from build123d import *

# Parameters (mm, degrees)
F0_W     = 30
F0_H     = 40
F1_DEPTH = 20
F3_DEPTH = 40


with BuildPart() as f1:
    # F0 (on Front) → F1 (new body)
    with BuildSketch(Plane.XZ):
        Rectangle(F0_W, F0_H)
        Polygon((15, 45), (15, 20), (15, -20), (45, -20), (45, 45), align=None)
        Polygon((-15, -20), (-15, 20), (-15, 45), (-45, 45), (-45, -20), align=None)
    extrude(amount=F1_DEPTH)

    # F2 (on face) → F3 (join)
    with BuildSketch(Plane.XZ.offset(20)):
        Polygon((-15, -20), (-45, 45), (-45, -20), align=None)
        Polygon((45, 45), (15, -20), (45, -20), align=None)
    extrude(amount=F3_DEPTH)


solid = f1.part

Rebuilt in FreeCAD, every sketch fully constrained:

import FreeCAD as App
import Part
import Sketcher

V = App.Vector

doc = App.newDocument("Part")
params = doc.addObject("Spreadsheet::Sheet", "Params")
for row, (alias, value) in enumerate([
    ("sketch1_width", "30 mm"),
    ("sketch1_height", "65 mm"),
    ("sketch1_height2", "25 mm"),
    ("pad1_length", "20 mm"),
    ("sketch2_width", "30 mm"),
    ("sketch2_height", "65 mm"),
    ("pad2_length", "40 mm"),
], start=1):
    params.set(f"A{row}", alias)
    params.set(f"B{row}", "=" + value)
    params.setAlias(f"B{row}", alias)

body = doc.addObject("PartDesign::Body", "Body")

# Sketch on XZ plane
sketch1 = body.newObject("Sketcher::SketchObject", "Sketch")
sketch1.AttachmentSupport = (doc.getObject("XZ_Plane"), [""])
sketch1.MapMode = "FlatFace"
sketch1.addGeometry([
    Part.LineSegment(V(45, -20, 0), V(45, 45, 0)),  # 0
    Part.LineSegment(V(45, 45, 0), V(15, 45, 0)),  # 1
    Part.LineSegment(V(15, 45, 0), V(15, 20, 0)),  # 2
    Part.LineSegment(V(15, 20, 0), V(-15, 20, 0)),  # 3
    Part.LineSegment(V(-15, 20, 0), V(-15, 45, 0)),  # 4
    Part.LineSegment(V(-15, 45, 0), V(-45, 45, 0)),  # 5
    Part.LineSegment(V(-45, 45, 0), V(-45, -20, 0)),  # 6
    Part.LineSegment(V(-45, -20, 0), V(45, -20, 0)),  # 7
], False)
sketch1.addConstraint([
    Sketcher.Constraint("Coincident", 0, 2, 1, 1),
    Sketcher.Constraint("Coincident", 1, 2, 2, 1),
    Sketcher.Constraint("Coincident", 2, 2, 3, 1),
    Sketcher.Constraint("Coincident", 3, 2, 4, 1),
    Sketcher.Constraint("Coincident", 4, 2, 5, 1),
    Sketcher.Constraint("Coincident", 5, 2, 6, 1),
    Sketcher.Constraint("Coincident", 6, 2, 7, 1),
    Sketcher.Constraint("Coincident", 7, 2, 0, 1),
    Sketcher.Constraint("Vertical", 0),
    Sketcher.Constraint("Horizontal", 1),
    Sketcher.Constraint("Vertical", 2),
    Sketcher.Constraint("Horizontal", 3),
    Sketcher.Constraint("Vertical", 4),
    Sketcher.Constraint("Horizontal", 5),
    Sketcher.Constraint("Vertical", 6),
    Sketcher.Constraint("Horizontal", 7),
    Sketcher.Constraint("Symmetric", 1, 2, 4, 2, -2),
    Sketcher.Constraint("Equal", 1, 3),
    Sketcher.Constraint("Equal", 3, 5),
    Sketcher.Constraint("DistanceX", 1, 2, 1, 1, 30.0),
    Sketcher.Constraint("DistanceY", 0, 1, 0, 2, 65.0),
    Sketcher.Constraint("DistanceY", 2, 2, 2, 1, 25.0),
    Sketcher.Constraint("DistanceY", -1, 1, 0, 2, 45.0),
])
sketch1.setExpression("Constraints[19]", "Params.sketch1_width")
sketch1.setExpression("Constraints[20]", "Params.sketch1_height")
sketch1.setExpression("Constraints[21]", "Params.sketch1_height2")
pad1 = body.newObject("PartDesign::Pad", "Pad")
pad1.Profile = sketch1
pad1.setExpression("Length", "Params.pad1_length")

# Sketch on XZ plane
sketch2 = body.newObject("Sketcher::SketchObject", "Sketch001")
sketch2.AttachmentSupport = (doc.getObject("XZ_Plane"), [""])
sketch2.MapMode = "FlatFace"
sketch2.AttachmentOffset = App.Placement(V(0, 0, 20), App.Rotation())
sketch2.addGeometry([
    Part.LineSegment(V(-15, -20, 0), V(-45, 45, 0)),  # 0
    Part.LineSegment(V(-45, 45, 0), V(-45, -20, 0)),  # 1
    Part.LineSegment(V(-45, -20, 0), V(-15, -20, 0)),  # 2
    Part.LineSegment(V(45, 45, 0), V(15, -20, 0)),  # 3
    Part.LineSegment(V(15, -20, 0), V(45, -20, 0)),  # 4
    Part.LineSegment(V(45, -20, 0), V(45, 45, 0)),  # 5
], False)
sketch2.addConstraint([
    Sketcher.Constraint("Coincident", 0, 2, 1, 1),
    Sketcher.Constraint("Coincident", 1, 2, 2, 1),
    Sketcher.Constraint("Coincident", 2, 2, 0, 1),
    Sketcher.Constraint("Coincident", 3, 2, 4, 1),
    Sketcher.Constraint("Coincident", 4, 2, 5, 1),
    Sketcher.Constraint("Coincident", 5, 2, 3, 1),
    Sketcher.Constraint("Vertical", 1),
    Sketcher.Constraint("Horizontal", 2),
    Sketcher.Constraint("Horizontal", 4),
    Sketcher.Constraint("Vertical", 5),
    Sketcher.Constraint("Symmetric", 2, 2, 3, 2, -2),
    Sketcher.Constraint("Symmetric", 0, 2, 5, 2, -2),
    Sketcher.Constraint("DistanceX", 2, 1, 2, 2, 30.0),
    Sketcher.Constraint("DistanceY", 1, 2, 1, 1, 65.0),
    Sketcher.Constraint("DistanceX", 0, 2, -1, 1, 45.0),
    Sketcher.Constraint("DistanceY", -1, 1, 0, 2, 45.0),
])
sketch2.setExpression("Constraints[12]", "Params.sketch2_width")
sketch2.setExpression("Constraints[13]", "Params.sketch2_height")
pad2 = body.newObject("PartDesign::Pad", "Pad001")
pad2.Profile = sketch2
pad2.setExpression("Length", "Params.pad2_length")

doc.recompute()
